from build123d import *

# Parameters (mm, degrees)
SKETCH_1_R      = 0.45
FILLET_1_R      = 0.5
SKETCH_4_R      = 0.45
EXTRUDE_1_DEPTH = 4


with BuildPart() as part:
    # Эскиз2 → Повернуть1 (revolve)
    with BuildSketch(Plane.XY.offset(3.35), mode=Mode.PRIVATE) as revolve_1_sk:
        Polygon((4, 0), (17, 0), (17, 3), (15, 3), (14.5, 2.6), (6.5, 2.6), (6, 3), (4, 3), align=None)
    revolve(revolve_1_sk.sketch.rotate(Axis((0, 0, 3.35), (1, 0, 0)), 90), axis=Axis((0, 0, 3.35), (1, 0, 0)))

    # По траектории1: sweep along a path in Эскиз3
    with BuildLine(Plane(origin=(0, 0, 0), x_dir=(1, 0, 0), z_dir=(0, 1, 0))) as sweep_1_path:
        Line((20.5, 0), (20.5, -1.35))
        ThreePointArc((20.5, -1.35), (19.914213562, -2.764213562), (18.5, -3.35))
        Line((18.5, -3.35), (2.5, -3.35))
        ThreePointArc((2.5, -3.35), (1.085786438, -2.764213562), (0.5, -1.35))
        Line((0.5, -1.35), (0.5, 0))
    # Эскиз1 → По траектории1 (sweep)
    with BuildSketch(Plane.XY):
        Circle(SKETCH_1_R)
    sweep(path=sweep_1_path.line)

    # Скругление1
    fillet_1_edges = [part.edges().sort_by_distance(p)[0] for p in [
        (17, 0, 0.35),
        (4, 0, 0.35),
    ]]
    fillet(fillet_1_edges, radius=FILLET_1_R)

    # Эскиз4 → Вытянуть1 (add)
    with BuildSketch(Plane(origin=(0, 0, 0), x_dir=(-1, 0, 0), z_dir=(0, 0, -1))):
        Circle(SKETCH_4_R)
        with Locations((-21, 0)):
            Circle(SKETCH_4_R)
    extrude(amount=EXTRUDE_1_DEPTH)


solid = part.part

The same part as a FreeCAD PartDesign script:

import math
import FreeCAD as App
import Part
import Sketcher
from FreeCAD import Vector
Q = App.Units.Quantity


def edges_at(feature, points):
    """Names of the edges that pass closest to the given points."""
    edges = feature.Shape.Edges
    near = lambda p: min(range(len(edges)), key=lambda i: edges[i].distToShape(Part.Vertex(*p))[0])
    return sorted({f"Edge{near(p) + 1}" for p in points})


def add_polygon(sketch, points):
    """Adds a closed chain of lines whose ends are joined by coincident constraints."""
    first, n = sketch.GeometryCount, len(points)
    for a, b in zip(points, points[1:] + points[:1]):
        sketch.addGeometry(Part.LineSegment(App.Vector(*a, 0), App.Vector(*b, 0)), False)
    for i in range(n):
        sketch.addConstraint(Sketcher.Constraint("Coincident", first + i, 2, first + (i + 1) % n, 1))

doc = App.newDocument("Part")
body = doc.addObject("PartDesign::Body", "Body")

sketch1 = body.newObject("Sketcher::SketchObject", "Sketch")
sketch1.AttachmentSupport = (doc.getObject("XY_Plane"), [""])
sketch1.MapMode = "FlatFace"
sketch1.AttachmentOffset = App.Placement(Vector(0, 0, 3.35), App.Rotation())
add_polygon(sketch1, [(4, 0), (17, 0), (17, 3), (15, 3), (14.5, 2.6), (6.5, 2.6), (6, 3), (4, 3)])
sketch1.addConstraint(Sketcher.Constraint("Horizontal", 0))
sketch1.addConstraint(Sketcher.Constraint("Vertical", 1))
sketch1.addConstraint(Sketcher.Constraint("Horizontal", 2))
sketch1.addConstraint(Sketcher.Constraint("Horizontal", 4))
sketch1.addConstraint(Sketcher.Constraint("Horizontal", 6))
sketch1.addConstraint(Sketcher.Constraint("Vertical", 7))
sketch1.addConstraint(Sketcher.Constraint("PointOnObject", 0, 2, -1))
sketch1.addConstraint(Sketcher.Constraint("Horizontal", 2, 2, 5, 2))
sketch1.addConstraint(Sketcher.Constraint("Equal", 2, 6))
sketch1.addConstraint(Sketcher.Constraint("Equal", 3, 5))
sketch1.addConstraint(Sketcher.Constraint("DistanceX", 0, 1, 0, 2, Q("13 mm")))
sketch1.addConstraint(Sketcher.Constraint("DistanceX", 2, 2, 2, 1, Q("2 mm")))
sketch1.addConstraint(Sketcher.Constraint("DistanceX", 4, 2, 4, 1, Q("8 mm")))
sketch1.addConstraint(Sketcher.Constraint("DistanceY", 1, 1, 1, 2, Q("3 mm")))
sketch1.addConstraint(Sketcher.Constraint("DistanceX", -1, 1, 0, 2, Q("17 mm")))
sketch1.addConstraint(Sketcher.Constraint("DistanceY", -1, 1, 3, 2, Q("2.6 mm")))
revolution = body.newObject("PartDesign::Revolution", "Revolution")
revolution.Profile = sketch1
revolution.ReferenceAxis = (sketch1, ["H_Axis"])
revolution.Angle = 360

sketch2 = body.newObject("Sketcher::SketchObject", "Sketch001")
sketch2.AttachmentSupport = (doc.getObject("XY_Plane"), [""])
sketch2.MapMode = "FlatFace"
sketch2.addGeometry(Part.Circle(Vector(0, 0, 0), Vector(0, 0, 1), 0.45), False)
sketch2.addConstraint(Sketcher.Constraint("Coincident", 0, 3, -1, 1))
sketch2.addConstraint(Sketcher.Constraint("Diameter", 0, Q("0.9 mm")))

sketch3 = body.newObject("Sketcher::SketchObject", "Sketch002")
sketch3.AttachmentSupport = (doc.getObject("XZ_Plane"), [""])
sketch3.MapMode = "FlatFace"
sketch3.addGeometry(Part.LineSegment(Vector(20.5, 0, 0), Vector(20.5, 1.4, 0)), False)
sketch3.addGeometry(Part.ArcOfCircle(Part.Circle(Vector(18.5, 1.3, 0), Vector(0, 0, 1), 2), math.radians(0), math.radians(90)), False)
sketch3.addGeometry(Part.LineSegment(Vector(18.5, 3.4, 0), Vector(2.5, 3.4, 0)), False)
sketch3.addGeometry(Part.ArcOfCircle(Part.Circle(Vector(2.5, 1.3, 0), Vector(0, 0, 1), 2), math.radians(90), math.radians(180)), False)
sketch3.addGeometry(Part.LineSegment(Vector(0.5, 1.4, 0), Vector(0.5, 0, 0)), False)
sketch3.addConstraint(Sketcher.Constraint("Tangent", 0, 2, 1, 1))
sketch3.addConstraint(Sketcher.Constraint("Tangent", 1, 2, 2, 1))
sketch3.addConstraint(Sketcher.Constraint("Tangent", 2, 2, 3, 1))
sketch3.addConstraint(Sketcher.Constraint("Tangent", 3, 2, 4, 1))
sketch3.addConstraint(Sketcher.Constraint("Vertical", 0))
sketch3.addConstraint(Sketcher.Constraint("Horizontal", 2))
sketch3.addConstraint(Sketcher.Constraint("Vertical", 4))
sketch3.addConstraint(Sketcher.Constraint("Equal", 1, 3))
sketch3.addConstraint(Sketcher.Constraint("PointOnObject", 0, 1, -1))
sketch3.addConstraint(Sketcher.Constraint("PointOnObject", 4, 2, -1))
sketch3.addConstraint(Sketcher.Constraint("Radius", 1, Q("2 mm")))
sketch3.addConstraint(Sketcher.Constraint("DistanceX", 2, 2, 2, 1, Q("16 mm")))
sketch3.addConstraint(Sketcher.Constraint("DistanceY", 0, 1, 0, 2, Q("1.35 mm")))
sketch3.addConstraint(Sketcher.Constraint("DistanceX", -1, 1, 1, 3, Q("18.5 mm")))
doc.recompute()

additivepipe = body.newObject("PartDesign::AdditivePipe", "AdditivePipe")
additivepipe.Profile = sketch2
additivepipe.Spine = (sketch3, ["Edge1", "Edge2", "Edge3", "Edge4", "Edge5"])
doc.recompute()

fillet = body.newObject("PartDesign::Fillet", "Fillet")
fillet.Base = (additivepipe, edges_at(additivepipe, [(17, 0, 0.35), (4, 0, 0.35)]))
fillet.Radius = 0.5

sketch4 = body.newObject("Sketcher::SketchObject", "Sketch003")
sketch4.AttachmentSupport = (doc.getObject("XY_Plane"), [""])
sketch4.MapMode = "FlatFace"
sketch4.addGeometry(Part.Circle(Vector(0, 0, 0), Vector(0, 0, 1), 0.45), False)
sketch4.addGeometry(Part.Circle(Vector(21, 0, 0), Vector(0, 0, 1), 0.45), False)
sketch4.addConstraint(Sketcher.Constraint("Coincident", 0, 3, -1, 1))
sketch4.addConstraint(Sketcher.Constraint("Equal", 0, 1))
sketch4.addConstraint(Sketcher.Constraint("PointOnObject", 1, 3, -1))
sketch4.addConstraint(Sketcher.Constraint("Diameter", 0, Q("0.9 mm")))
sketch4.addConstraint(Sketcher.Constraint("DistanceX", -1, 1, 1, 3, Q("21 mm")))
pad1 = body.newObject("PartDesign::Pad", "Pad")
pad1.Profile = sketch4
pad1.Length = 4
pad1.Reversed = True

doc.recompute()
